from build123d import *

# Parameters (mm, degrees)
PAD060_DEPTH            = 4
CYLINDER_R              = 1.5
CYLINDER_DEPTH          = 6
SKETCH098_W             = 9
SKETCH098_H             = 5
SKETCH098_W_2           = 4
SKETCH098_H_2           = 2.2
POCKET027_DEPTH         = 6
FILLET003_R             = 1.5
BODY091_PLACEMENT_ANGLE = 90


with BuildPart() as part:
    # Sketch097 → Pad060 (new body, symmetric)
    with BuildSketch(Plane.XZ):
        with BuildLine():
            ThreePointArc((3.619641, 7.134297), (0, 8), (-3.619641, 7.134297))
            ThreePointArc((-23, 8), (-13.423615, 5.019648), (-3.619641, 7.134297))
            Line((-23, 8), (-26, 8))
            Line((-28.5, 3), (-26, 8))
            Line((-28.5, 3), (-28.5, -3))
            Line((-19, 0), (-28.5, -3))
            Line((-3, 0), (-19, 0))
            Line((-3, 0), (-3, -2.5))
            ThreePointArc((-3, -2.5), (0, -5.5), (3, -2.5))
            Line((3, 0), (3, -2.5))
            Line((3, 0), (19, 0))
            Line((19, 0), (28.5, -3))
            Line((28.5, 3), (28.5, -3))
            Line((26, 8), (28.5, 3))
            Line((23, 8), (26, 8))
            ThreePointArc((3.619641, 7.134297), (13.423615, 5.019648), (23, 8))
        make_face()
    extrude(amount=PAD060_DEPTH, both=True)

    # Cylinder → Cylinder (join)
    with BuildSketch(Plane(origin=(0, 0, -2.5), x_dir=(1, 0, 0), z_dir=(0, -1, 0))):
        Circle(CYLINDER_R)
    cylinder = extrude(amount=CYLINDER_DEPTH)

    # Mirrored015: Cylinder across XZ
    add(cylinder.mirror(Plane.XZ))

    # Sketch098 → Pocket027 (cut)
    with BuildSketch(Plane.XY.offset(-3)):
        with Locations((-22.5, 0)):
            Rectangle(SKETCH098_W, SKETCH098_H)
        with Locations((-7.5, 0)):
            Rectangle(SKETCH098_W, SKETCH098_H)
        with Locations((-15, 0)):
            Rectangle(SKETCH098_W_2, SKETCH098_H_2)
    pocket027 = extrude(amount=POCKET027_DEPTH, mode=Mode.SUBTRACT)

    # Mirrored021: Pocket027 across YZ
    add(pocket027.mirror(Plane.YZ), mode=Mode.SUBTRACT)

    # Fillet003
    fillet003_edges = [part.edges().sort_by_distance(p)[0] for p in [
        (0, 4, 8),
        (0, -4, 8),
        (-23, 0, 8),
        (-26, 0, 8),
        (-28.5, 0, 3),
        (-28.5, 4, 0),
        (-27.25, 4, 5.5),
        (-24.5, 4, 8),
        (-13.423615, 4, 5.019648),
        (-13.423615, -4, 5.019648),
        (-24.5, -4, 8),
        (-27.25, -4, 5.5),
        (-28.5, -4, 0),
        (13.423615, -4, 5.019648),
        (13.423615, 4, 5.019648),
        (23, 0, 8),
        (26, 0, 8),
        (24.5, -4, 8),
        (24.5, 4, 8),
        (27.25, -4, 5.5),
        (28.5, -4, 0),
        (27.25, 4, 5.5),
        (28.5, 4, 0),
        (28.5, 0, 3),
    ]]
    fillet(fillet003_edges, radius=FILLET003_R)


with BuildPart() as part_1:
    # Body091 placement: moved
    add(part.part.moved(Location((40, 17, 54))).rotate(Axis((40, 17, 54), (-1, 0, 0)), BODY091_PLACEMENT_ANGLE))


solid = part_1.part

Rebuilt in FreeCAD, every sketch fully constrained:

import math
import FreeCAD as App
import Part
import Sketcher

V = App.Vector
Q = App.Units.Quantity


def edges_at(feature, points):
    """Names of the edges that pass closest to the given points."""
    edges = feature.Shape.Edges
    near = lambda p: min(range(len(edges)), key=lambda i: edges[i].distToShape(Part.Vertex(*p))[0])
    return sorted({f"Edge{near(p) + 1}" for p in points})


def add_polygon(sketch, points):
    """Adds a closed chain of lines whose ends are joined by coincident constraints."""
    first, n = sketch.GeometryCount, len(points)
    for a, b in zip(points, points[1:] + points[:1]):
        sketch.addGeometry(Part.LineSegment(App.Vector(*a, 0), App.Vector(*b, 0)), False)
    for i in range(n):
        sketch.addConstraint(Sketcher.Constraint("Coincident", first + i, 2, first + (i + 1) % n, 1))

doc = App.newDocument("Part")
body = doc.addObject("PartDesign::Body", "Body")

sketch1 = doc.addObject("Sketcher::SketchObject", "Sketch")
body.addObject(sketch1)
sketch1.AttachmentSupport = (doc.XZ_Plane, [""])
sketch1.MapMode = "FlatFace"
sketch1.addGeometry([
    Part.ArcOfCircle(Part.Circle(V(0, 0.000003, 0), V(0, 0, 1), 7.999997), math.radians(63.098677), math.radians(116.901323)),
    Part.ArcOfCircle(Part.Circle(V(-12.543478, 24.723145, 0), V(0, 0, 1), 19.723145), math.radians(-122.016608), math.radians(-63.098692)),
    Part.LineSegment(V(-23, 8, 0), V(-26, 8, 0)),
    Part.LineSegment(V(-26, 8, 0), V(-28.5, 3, 0)),
    Part.LineSegment(V(-28.5, 3, 0), V(-28.5, -3, 0)),
    Part.LineSegment(V(-28.5, -3, 0), V(-19, 0, 0)),
    Part.LineSegment(V(-19, 0, 0), V(-3, 0, 0)),
    Part.LineSegment(V(-3, 0, 0), V(-3, -2.5, 0)),
    Part.ArcOfCircle(Part.Circle(V(0, -2.5, 0), V(0, 0, 1), 3), math.radians(180), math.radians(360)),
    Part.LineSegment(V(3, -2.5, 0), V(3, 0, 0)),
    Part.LineSegment(V(3, 0, 0), V(19, 0, 0)),
    Part.LineSegment(V(19, 0, 0), V(28.5, -3, 0)),
    Part.LineSegment(V(28.5, -3, 0), V(28.5, 3, 0)),
    Part.LineSegment(V(28.5, 3, 0), V(26, 8, 0)),
    Part.LineSegment(V(26, 8, 0), V(23, 8, 0)),
    Part.ArcOfCircle(Part.Circle(V(12.543478, 24.723145, 0), V(0, 0, 1), 19.723145), math.radians(-116.901308), math.radians(-57.983392)),
], False)
sketch1.addConstraint([
    Sketcher.Constraint("Tangent", 0, 2, 1, 2),
    Sketcher.Constraint("Coincident", 1, 1, 2, 1),
    Sketcher.Constraint("Coincident", 2, 2, 3, 1),
    Sketcher.Constraint("Coincident", 3, 2, 4, 1),
    Sketcher.Constraint("Coincident", 4, 2, 5, 1),
    Sketcher.Constraint("Coincident", 5, 2, 6, 1),
    Sketcher.Constraint("Coincident", 6, 2, 7, 1),
    Sketcher.Constraint("Tangent", 7, 2, 8, 1),
    Sketcher.Constraint("Tangent", 8, 2, 9, 1),
    Sketcher.Constraint("Coincident", 9, 2, 10, 1),
    Sketcher.Constraint("Coincident", 10, 2, 11, 1),
    Sketcher.Constraint("Coincident", 11, 2, 12, 1),
    Sketcher.Constraint("Coincident", 12, 2, 13, 1),
    Sketcher.Constraint("Coincident", 13, 2, 14, 1),
    Sketcher.Constraint("Coincident", 14, 2, 15, 2),
    Sketcher.Constraint("Tangent", 15, 1, 0, 1),
    Sketcher.Constraint("Horizontal", 2),
    Sketcher.Constraint("Vertical", 4),
    Sketcher.Constraint("Horizontal", 6),
    Sketcher.Constraint("Vertical", 7),
    Sketcher.Constraint("Vertical", 9),
    Sketcher.Constraint("Horizontal", 10),
    Sketcher.Constraint("Vertical", 12),
    Sketcher.Constraint("Horizontal", 14),
    Sketcher.Constraint("Coincident", 0, 3, -1, 1),
    Sketcher.Constraint("Equal", 1, 15),
    Sketcher.Constraint("Symmetric", 6, 2, 9, 2, -1, 1),
    Sketcher.Constraint("Symmetric", 3, 2, 11, 2, -1, 1),
    Sketcher.Constraint("Symmetric", 5, 2, 10, 2, -2),
    Sketcher.Constraint("Symmetric", 2, 2, 13, 2, -2),
    Sketcher.Constraint("Horizontal", 1, 3, 15, 3),
    Sketcher.Constraint("Horizontal", 4, 2, 11, 2),
    Sketcher.Constraint("Horizontal", 3, 2, 12, 2),
    Sketcher.Constraint("Radius", 8, Q("3 mm")),
    Sketcher.Constraint("DistanceX", 2, 2, 2, 1, Q("3 mm")),
    Sketcher.Constraint("DistanceX", 6, 1, 6, 2, Q("16 mm")),
    Sketcher.Constraint("DistanceY", 4, 2, 4, 1, Q("6 mm")),
    Sketcher.Constraint("DistanceY", 7, 2, 7, 1, Q("2.5 mm")),
    Sketcher.Constraint("DistanceX", 1, 1, -1, 1, Q("23 mm")),
    Sketcher.Constraint("DistanceY", -1, 1, 1, 1, Q("8 mm")),
    Sketcher.Constraint("DistanceX", 3, 2, -1, 1, Q("28.5 mm")),
    Sketcher.Constraint("Radius", 0, Q("7.999997 mm")),
    Sketcher.Constraint("Radius", 1, Q("19.723145 mm")),
])
pad1 = doc.addObject("PartDesign::Pad", "Pad")
body.addObject(pad1)
pad1.Profile = sketch1
pad1.Length = 8
pad1.Midplane = True

sketch2 = doc.addObject("Sketcher::SketchObject", "Sketch001")
body.addObject(sketch2)
sketch2.AttachmentSupport = (doc.XZ_Plane, [""])
sketch2.MapMode = "FlatFace"
sketch2.addGeometry(Part.Circle(V(0, -2.5, 0), V(0, 0, 1), 1.5), False)
sketch2.addConstraint([
    Sketcher.Constraint("PointOnObject", 0, 3, -2),
    Sketcher.Constraint("Diameter", 0, Q("3 mm")),
    Sketcher.Constraint("DistanceY", 0, 3, -1, 1, Q("2.5 mm")),
])
pad2 = doc.addObject("PartDesign::Pad", "Pad001")
body.addObject(pad2)
pad2.Profile = sketch2
pad2.Length = 6
doc.recompute()

mirrored = doc.addObject("PartDesign::Mirrored", "Mirrored")
body.addObject(mirrored)
mirrored.Originals = [pad2]
mirrored.MirrorPlane = (doc.XZ_Plane, [""])
body.Tip = mirrored

sketch3 = doc.addObject("Sketcher::SketchObject", "Sketch002")
body.addObject(sketch3)
sketch3.AttachmentSupport = (doc.XY_Plane, [""])
sketch3.MapMode = "FlatFace"
sketch3.AttachmentOffset = App.Placement(V(0, 0, -3), App.Rotation())
add_polygon(sketch3, [(-27, 2.5), (-27, -2.5), (-18, -2.5), (-18, 2.5)])
add_polygon(sketch3, [(-12, 2.5), (-12, -2.5), (-3, -2.5), (-3, 2.5)])
add_polygon(sketch3, [(-17, 1.1), (-17, -1.1), (-13, -1.1), (-13, 1.1)])
sketch3.addConstraint([
    Sketcher.Constraint("Vertical", 0),
    Sketcher.Constraint("Horizontal", 1),
    Sketcher.Constraint("Vertical", 2),
    Sketcher.Constraint("Horizontal", 3),
    Sketcher.Constraint("Vertical", 4),
    Sketcher.Constraint("Horizontal", 5),
    Sketcher.Constraint("Vertical", 6),
    Sketcher.Constraint("Horizontal", 7),
    Sketcher.Constraint("Vertical", 8),
    Sketcher.Constraint("Horizontal", 9),
    Sketcher.Constraint("Vertical", 10),
    Sketcher.Constraint("Horizontal", 11),
    Sketcher.Constraint("Horizontal", 1, 2, 4, 2),
    Sketcher.Constraint("Horizontal", 3, 2, 6, 2),
    Sketcher.Constraint("Equal", 3, 5),
    Sketcher.Constraint("DistanceX", 1, 1, 1, 2, Q("9 mm")),
    Sketcher.Constraint("DistanceX", 9, 1, 9, 2, Q("4 mm")),
    Sketcher.Constraint("DistanceY", 0, 2, 0, 1, Q("5 mm")),
    Sketcher.Constraint("DistanceY", 8, 2, 8, 1, Q("2.2 mm")),
    Sketcher.Constraint("DistanceX", 0, 2, -1, 1, Q("27 mm")),
    Sketcher.Constraint("DistanceX", 4, 2, -1, 1, Q("12 mm")),
    Sketcher.Constraint("DistanceX", 8, 2, -1, 1, Q("17 mm")),
    Sketcher.Constraint("DistanceY", 0, 2, -1, 1, Q("2.5 mm")),
    Sketcher.Constraint("DistanceY", 8, 2, -1, 1, Q("1.1 mm")),
])
pocket1 = doc.addObject("PartDesign::Pocket", "Pocket")
body.addObject(pocket1)
pocket1.Profile = sketch3
pocket1.Length = 6
pocket1.Reversed = True
doc.recompute()

mirrored2 = doc.addObject("PartDesign::Mirrored", "Mirrored001")
body.addObject(mirrored2)
mirrored2.Originals = [pocket1]
mirrored2.MirrorPlane = (doc.YZ_Plane, [""])
body.Tip = mirrored2
doc.recompute()

fillet = doc.addObject("PartDesign::Fillet", "Fillet")
body.addObject(fillet)
fillet.Base = (mirrored2, edges_at(mirrored2, [
    (0, 4, 8),
    (0, -4, 8),
    (-23, 0, 8),
    (-26, 0, 8),
    (-28.5, 0, 3),
    (-28.5, 4, 0),
    (-27.25, 4, 5.5),
    (-24.5, 4, 8),
    (-13.424, 4, 5.02),
    (-13.424, -4, 5.02),
    (-24.5, -4, 8),
    (-27.25, -4, 5.5),
    (-28.5, -4, 0),
    (13.424, -4, 5.02),
    (13.424, 4, 5.02),
    (23, 0, 8),
    (26, 0, 8),
    (24.5, -4, 8),
    (24.5, 4, 8),
    (27.25, -4, 5.5),
    (28.5, -4, 0),
    (27.25, 4, 5.5),
    (28.5, 4, 0),
    (28.5, 0, 3),
]))
fillet.Radius = 1.5
body2 = doc.addObject("PartDesign::Body", "Body001")
doc.recompute()

body.Placement = App.Placement(V(40, 17, 54), App.Rotation(V(-1, 0, 0), 90))
boolean = doc.addObject("PartDesign::Boolean", "Boolean")
body2.addObject(boolean)
boolean.Type = "Fuse"
boolean.addObjects([body])

doc.recompute()
